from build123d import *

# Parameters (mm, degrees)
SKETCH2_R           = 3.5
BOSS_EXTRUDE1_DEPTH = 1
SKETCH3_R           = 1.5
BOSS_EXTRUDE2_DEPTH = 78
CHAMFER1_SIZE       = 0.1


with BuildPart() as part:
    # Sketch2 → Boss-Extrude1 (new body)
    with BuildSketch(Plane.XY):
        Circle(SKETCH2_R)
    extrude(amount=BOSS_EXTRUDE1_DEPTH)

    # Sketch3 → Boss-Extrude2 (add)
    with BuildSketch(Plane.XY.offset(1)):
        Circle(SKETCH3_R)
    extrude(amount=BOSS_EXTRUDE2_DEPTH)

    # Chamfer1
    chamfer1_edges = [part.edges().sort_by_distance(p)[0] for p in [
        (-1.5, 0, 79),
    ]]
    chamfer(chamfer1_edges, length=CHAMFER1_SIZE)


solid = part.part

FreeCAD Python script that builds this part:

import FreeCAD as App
import Part
import Sketcher


def edges_at(feature, points):
    """Names of the edges that pass closest to the given points."""
    edges = feature.Shape.Edges
    near = lambda p: min(range(len(edges)), key=lambda i: edges[i].distToShape(Part.Vertex(*p))[0])
    return sorted({f"Edge{near(p) + 1}" for p in points})

doc = App.newDocument("Part")
params = doc.addObject("Spreadsheet::Sheet", "Params")
for row, (alias, value) in enumerate([
    ("sketch1_diameter", "7 mm"),
    ("pad1_length", "1 mm"),
    ("sketch2_diameter", "3 mm"),
    ("pad2_length", "78 mm"),
    ("chamfer_size", "0.1 mm"),
], start=1):
    params.set(f"A{row}", alias)
    params.set(f"B{row}", "=" + value)
    params.setAlias(f"B{row}", alias)

body = doc.addObject("PartDesign::Body", "Body")

sketch1 = body.newObject("Sketcher::SketchObject", "Sketch")
sketch1.AttachmentSupport = (doc.getObject("XY_Plane"), [""])
sketch1.MapMode = "FlatFace"
sketch1.addGeometry(Part.Circle(App.Vector(0, 0, 0), App.Vector(0, 0, 1), 3.5), False)
sketch1.addConstraint([
    Sketcher.Constraint("Coincident", 0, 3, -1, 1),
    Sketcher.Constraint("Diameter", 0, 7.0),
])
sketch1.setExpression("Constraints[1]", "Params.sketch1_diameter")
pad1 = body.newObject("PartDesign::Pad", "Pad")
pad1.Profile = sketch1
pad1.setExpression("Length", "Params.pad1_length")

sketch2 = body.newObject("Sketcher::SketchObject", "Sketch001")
sketch2.AttachmentSupport = (doc.getObject("XY_Plane"), [""])
sketch2.MapMode = "FlatFace"
sketch2.AttachmentOffset = App.Placement(App.Vector(0, 0, 1), App.Rotation())
sketch2.addGeometry(Part.Circle(App.Vector(0, 0, 0), App.Vector(0, 0, 1), 1.5), False)
sketch2.addConstraint([
    Sketcher.Constraint("Coincident", 0, 3, -1, 1),
    Sketcher.Constraint("Diameter", 0, 3.0),
])
sketch2.setExpression("Constraints[1]", "Params.sketch2_diameter")
pad2 = body.newObject("PartDesign::Pad", "Pad001")
pad2.Profile = sketch2
pad2.setExpression("Length", "Params.pad2_length")
doc.recompute()

chamfer = body.newObject("PartDesign::Chamfer", "Chamfer")
chamfer.Base = (pad2, edges_at(pad2, [(-1.5, 0, 79)]))
chamfer.setExpression("Size", "Params.chamfer_size")

doc.recompute()
